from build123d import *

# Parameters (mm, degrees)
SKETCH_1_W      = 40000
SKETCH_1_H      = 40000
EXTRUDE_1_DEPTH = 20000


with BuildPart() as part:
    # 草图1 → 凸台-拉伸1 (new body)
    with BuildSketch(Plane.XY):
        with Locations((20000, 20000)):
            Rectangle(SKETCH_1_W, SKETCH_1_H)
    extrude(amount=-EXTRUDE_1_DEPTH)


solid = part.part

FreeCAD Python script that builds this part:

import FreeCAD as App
import Part
import Sketcher
from FreeCAD import Vector
Q = App.Units.Quantity


def add_polygon(sketch, points):
    """Adds a closed chain of lines whose ends are joined by coincident constraints."""
    first, n = sketch.GeometryCount, len(points)
    for a, b in zip(points, points[1:] + points[:1]):
        sketch.addGeometry(Part.LineSegment(App.Vector(*a, 0), App.Vector(*b, 0)), False)
    for i in range(n):
        sketch.addConstraint(Sketcher.Constraint("Coincident", first + i, 2, first + (i + 1) % n, 1))

doc = App.newDocument("Part")
body = doc.addObject("PartDesign::Body", "Body")

# Sketch on XY plane
sketch1 = doc.addObject("Sketcher::SketchObject", "Sketch")
body.addObject(sketch1)
sketch1.AttachmentSupport = (doc.XY_Plane, [""])
sketch1.MapMode = "FlatFace"
add_polygon(sketch1, [(0, 40000), (0, 0), (40000, 0), (40000, 40000)])  # lines 0-3
sketch1.addConstraint(Sketcher.Constraint("Vertical", 0))
sketch1.addConstraint(Sketcher.Constraint("Horizontal", 1))
sketch1.addConstraint(Sketcher.Constraint("Vertical", 2))
sketch1.addConstraint(Sketcher.Constraint("Horizontal", 3))
sketch1.addConstraint(Sketcher.Constraint("Coincident", 0, 2, -1, 1))
sketch1.addConstraint(Sketcher.Constraint("Equal", 3, 0))
sketch1.addConstraint(Sketcher.Constraint("DistanceX", 1, 1, 1, 2, Q("40000 mm")))
pad1 = doc.addObject("PartDesign::Pad", "Pad")
body.addObject(pad1)
pad1.Profile = sketch1
pad1.Length = 20000
pad1.Reversed = True

doc.recompute()
